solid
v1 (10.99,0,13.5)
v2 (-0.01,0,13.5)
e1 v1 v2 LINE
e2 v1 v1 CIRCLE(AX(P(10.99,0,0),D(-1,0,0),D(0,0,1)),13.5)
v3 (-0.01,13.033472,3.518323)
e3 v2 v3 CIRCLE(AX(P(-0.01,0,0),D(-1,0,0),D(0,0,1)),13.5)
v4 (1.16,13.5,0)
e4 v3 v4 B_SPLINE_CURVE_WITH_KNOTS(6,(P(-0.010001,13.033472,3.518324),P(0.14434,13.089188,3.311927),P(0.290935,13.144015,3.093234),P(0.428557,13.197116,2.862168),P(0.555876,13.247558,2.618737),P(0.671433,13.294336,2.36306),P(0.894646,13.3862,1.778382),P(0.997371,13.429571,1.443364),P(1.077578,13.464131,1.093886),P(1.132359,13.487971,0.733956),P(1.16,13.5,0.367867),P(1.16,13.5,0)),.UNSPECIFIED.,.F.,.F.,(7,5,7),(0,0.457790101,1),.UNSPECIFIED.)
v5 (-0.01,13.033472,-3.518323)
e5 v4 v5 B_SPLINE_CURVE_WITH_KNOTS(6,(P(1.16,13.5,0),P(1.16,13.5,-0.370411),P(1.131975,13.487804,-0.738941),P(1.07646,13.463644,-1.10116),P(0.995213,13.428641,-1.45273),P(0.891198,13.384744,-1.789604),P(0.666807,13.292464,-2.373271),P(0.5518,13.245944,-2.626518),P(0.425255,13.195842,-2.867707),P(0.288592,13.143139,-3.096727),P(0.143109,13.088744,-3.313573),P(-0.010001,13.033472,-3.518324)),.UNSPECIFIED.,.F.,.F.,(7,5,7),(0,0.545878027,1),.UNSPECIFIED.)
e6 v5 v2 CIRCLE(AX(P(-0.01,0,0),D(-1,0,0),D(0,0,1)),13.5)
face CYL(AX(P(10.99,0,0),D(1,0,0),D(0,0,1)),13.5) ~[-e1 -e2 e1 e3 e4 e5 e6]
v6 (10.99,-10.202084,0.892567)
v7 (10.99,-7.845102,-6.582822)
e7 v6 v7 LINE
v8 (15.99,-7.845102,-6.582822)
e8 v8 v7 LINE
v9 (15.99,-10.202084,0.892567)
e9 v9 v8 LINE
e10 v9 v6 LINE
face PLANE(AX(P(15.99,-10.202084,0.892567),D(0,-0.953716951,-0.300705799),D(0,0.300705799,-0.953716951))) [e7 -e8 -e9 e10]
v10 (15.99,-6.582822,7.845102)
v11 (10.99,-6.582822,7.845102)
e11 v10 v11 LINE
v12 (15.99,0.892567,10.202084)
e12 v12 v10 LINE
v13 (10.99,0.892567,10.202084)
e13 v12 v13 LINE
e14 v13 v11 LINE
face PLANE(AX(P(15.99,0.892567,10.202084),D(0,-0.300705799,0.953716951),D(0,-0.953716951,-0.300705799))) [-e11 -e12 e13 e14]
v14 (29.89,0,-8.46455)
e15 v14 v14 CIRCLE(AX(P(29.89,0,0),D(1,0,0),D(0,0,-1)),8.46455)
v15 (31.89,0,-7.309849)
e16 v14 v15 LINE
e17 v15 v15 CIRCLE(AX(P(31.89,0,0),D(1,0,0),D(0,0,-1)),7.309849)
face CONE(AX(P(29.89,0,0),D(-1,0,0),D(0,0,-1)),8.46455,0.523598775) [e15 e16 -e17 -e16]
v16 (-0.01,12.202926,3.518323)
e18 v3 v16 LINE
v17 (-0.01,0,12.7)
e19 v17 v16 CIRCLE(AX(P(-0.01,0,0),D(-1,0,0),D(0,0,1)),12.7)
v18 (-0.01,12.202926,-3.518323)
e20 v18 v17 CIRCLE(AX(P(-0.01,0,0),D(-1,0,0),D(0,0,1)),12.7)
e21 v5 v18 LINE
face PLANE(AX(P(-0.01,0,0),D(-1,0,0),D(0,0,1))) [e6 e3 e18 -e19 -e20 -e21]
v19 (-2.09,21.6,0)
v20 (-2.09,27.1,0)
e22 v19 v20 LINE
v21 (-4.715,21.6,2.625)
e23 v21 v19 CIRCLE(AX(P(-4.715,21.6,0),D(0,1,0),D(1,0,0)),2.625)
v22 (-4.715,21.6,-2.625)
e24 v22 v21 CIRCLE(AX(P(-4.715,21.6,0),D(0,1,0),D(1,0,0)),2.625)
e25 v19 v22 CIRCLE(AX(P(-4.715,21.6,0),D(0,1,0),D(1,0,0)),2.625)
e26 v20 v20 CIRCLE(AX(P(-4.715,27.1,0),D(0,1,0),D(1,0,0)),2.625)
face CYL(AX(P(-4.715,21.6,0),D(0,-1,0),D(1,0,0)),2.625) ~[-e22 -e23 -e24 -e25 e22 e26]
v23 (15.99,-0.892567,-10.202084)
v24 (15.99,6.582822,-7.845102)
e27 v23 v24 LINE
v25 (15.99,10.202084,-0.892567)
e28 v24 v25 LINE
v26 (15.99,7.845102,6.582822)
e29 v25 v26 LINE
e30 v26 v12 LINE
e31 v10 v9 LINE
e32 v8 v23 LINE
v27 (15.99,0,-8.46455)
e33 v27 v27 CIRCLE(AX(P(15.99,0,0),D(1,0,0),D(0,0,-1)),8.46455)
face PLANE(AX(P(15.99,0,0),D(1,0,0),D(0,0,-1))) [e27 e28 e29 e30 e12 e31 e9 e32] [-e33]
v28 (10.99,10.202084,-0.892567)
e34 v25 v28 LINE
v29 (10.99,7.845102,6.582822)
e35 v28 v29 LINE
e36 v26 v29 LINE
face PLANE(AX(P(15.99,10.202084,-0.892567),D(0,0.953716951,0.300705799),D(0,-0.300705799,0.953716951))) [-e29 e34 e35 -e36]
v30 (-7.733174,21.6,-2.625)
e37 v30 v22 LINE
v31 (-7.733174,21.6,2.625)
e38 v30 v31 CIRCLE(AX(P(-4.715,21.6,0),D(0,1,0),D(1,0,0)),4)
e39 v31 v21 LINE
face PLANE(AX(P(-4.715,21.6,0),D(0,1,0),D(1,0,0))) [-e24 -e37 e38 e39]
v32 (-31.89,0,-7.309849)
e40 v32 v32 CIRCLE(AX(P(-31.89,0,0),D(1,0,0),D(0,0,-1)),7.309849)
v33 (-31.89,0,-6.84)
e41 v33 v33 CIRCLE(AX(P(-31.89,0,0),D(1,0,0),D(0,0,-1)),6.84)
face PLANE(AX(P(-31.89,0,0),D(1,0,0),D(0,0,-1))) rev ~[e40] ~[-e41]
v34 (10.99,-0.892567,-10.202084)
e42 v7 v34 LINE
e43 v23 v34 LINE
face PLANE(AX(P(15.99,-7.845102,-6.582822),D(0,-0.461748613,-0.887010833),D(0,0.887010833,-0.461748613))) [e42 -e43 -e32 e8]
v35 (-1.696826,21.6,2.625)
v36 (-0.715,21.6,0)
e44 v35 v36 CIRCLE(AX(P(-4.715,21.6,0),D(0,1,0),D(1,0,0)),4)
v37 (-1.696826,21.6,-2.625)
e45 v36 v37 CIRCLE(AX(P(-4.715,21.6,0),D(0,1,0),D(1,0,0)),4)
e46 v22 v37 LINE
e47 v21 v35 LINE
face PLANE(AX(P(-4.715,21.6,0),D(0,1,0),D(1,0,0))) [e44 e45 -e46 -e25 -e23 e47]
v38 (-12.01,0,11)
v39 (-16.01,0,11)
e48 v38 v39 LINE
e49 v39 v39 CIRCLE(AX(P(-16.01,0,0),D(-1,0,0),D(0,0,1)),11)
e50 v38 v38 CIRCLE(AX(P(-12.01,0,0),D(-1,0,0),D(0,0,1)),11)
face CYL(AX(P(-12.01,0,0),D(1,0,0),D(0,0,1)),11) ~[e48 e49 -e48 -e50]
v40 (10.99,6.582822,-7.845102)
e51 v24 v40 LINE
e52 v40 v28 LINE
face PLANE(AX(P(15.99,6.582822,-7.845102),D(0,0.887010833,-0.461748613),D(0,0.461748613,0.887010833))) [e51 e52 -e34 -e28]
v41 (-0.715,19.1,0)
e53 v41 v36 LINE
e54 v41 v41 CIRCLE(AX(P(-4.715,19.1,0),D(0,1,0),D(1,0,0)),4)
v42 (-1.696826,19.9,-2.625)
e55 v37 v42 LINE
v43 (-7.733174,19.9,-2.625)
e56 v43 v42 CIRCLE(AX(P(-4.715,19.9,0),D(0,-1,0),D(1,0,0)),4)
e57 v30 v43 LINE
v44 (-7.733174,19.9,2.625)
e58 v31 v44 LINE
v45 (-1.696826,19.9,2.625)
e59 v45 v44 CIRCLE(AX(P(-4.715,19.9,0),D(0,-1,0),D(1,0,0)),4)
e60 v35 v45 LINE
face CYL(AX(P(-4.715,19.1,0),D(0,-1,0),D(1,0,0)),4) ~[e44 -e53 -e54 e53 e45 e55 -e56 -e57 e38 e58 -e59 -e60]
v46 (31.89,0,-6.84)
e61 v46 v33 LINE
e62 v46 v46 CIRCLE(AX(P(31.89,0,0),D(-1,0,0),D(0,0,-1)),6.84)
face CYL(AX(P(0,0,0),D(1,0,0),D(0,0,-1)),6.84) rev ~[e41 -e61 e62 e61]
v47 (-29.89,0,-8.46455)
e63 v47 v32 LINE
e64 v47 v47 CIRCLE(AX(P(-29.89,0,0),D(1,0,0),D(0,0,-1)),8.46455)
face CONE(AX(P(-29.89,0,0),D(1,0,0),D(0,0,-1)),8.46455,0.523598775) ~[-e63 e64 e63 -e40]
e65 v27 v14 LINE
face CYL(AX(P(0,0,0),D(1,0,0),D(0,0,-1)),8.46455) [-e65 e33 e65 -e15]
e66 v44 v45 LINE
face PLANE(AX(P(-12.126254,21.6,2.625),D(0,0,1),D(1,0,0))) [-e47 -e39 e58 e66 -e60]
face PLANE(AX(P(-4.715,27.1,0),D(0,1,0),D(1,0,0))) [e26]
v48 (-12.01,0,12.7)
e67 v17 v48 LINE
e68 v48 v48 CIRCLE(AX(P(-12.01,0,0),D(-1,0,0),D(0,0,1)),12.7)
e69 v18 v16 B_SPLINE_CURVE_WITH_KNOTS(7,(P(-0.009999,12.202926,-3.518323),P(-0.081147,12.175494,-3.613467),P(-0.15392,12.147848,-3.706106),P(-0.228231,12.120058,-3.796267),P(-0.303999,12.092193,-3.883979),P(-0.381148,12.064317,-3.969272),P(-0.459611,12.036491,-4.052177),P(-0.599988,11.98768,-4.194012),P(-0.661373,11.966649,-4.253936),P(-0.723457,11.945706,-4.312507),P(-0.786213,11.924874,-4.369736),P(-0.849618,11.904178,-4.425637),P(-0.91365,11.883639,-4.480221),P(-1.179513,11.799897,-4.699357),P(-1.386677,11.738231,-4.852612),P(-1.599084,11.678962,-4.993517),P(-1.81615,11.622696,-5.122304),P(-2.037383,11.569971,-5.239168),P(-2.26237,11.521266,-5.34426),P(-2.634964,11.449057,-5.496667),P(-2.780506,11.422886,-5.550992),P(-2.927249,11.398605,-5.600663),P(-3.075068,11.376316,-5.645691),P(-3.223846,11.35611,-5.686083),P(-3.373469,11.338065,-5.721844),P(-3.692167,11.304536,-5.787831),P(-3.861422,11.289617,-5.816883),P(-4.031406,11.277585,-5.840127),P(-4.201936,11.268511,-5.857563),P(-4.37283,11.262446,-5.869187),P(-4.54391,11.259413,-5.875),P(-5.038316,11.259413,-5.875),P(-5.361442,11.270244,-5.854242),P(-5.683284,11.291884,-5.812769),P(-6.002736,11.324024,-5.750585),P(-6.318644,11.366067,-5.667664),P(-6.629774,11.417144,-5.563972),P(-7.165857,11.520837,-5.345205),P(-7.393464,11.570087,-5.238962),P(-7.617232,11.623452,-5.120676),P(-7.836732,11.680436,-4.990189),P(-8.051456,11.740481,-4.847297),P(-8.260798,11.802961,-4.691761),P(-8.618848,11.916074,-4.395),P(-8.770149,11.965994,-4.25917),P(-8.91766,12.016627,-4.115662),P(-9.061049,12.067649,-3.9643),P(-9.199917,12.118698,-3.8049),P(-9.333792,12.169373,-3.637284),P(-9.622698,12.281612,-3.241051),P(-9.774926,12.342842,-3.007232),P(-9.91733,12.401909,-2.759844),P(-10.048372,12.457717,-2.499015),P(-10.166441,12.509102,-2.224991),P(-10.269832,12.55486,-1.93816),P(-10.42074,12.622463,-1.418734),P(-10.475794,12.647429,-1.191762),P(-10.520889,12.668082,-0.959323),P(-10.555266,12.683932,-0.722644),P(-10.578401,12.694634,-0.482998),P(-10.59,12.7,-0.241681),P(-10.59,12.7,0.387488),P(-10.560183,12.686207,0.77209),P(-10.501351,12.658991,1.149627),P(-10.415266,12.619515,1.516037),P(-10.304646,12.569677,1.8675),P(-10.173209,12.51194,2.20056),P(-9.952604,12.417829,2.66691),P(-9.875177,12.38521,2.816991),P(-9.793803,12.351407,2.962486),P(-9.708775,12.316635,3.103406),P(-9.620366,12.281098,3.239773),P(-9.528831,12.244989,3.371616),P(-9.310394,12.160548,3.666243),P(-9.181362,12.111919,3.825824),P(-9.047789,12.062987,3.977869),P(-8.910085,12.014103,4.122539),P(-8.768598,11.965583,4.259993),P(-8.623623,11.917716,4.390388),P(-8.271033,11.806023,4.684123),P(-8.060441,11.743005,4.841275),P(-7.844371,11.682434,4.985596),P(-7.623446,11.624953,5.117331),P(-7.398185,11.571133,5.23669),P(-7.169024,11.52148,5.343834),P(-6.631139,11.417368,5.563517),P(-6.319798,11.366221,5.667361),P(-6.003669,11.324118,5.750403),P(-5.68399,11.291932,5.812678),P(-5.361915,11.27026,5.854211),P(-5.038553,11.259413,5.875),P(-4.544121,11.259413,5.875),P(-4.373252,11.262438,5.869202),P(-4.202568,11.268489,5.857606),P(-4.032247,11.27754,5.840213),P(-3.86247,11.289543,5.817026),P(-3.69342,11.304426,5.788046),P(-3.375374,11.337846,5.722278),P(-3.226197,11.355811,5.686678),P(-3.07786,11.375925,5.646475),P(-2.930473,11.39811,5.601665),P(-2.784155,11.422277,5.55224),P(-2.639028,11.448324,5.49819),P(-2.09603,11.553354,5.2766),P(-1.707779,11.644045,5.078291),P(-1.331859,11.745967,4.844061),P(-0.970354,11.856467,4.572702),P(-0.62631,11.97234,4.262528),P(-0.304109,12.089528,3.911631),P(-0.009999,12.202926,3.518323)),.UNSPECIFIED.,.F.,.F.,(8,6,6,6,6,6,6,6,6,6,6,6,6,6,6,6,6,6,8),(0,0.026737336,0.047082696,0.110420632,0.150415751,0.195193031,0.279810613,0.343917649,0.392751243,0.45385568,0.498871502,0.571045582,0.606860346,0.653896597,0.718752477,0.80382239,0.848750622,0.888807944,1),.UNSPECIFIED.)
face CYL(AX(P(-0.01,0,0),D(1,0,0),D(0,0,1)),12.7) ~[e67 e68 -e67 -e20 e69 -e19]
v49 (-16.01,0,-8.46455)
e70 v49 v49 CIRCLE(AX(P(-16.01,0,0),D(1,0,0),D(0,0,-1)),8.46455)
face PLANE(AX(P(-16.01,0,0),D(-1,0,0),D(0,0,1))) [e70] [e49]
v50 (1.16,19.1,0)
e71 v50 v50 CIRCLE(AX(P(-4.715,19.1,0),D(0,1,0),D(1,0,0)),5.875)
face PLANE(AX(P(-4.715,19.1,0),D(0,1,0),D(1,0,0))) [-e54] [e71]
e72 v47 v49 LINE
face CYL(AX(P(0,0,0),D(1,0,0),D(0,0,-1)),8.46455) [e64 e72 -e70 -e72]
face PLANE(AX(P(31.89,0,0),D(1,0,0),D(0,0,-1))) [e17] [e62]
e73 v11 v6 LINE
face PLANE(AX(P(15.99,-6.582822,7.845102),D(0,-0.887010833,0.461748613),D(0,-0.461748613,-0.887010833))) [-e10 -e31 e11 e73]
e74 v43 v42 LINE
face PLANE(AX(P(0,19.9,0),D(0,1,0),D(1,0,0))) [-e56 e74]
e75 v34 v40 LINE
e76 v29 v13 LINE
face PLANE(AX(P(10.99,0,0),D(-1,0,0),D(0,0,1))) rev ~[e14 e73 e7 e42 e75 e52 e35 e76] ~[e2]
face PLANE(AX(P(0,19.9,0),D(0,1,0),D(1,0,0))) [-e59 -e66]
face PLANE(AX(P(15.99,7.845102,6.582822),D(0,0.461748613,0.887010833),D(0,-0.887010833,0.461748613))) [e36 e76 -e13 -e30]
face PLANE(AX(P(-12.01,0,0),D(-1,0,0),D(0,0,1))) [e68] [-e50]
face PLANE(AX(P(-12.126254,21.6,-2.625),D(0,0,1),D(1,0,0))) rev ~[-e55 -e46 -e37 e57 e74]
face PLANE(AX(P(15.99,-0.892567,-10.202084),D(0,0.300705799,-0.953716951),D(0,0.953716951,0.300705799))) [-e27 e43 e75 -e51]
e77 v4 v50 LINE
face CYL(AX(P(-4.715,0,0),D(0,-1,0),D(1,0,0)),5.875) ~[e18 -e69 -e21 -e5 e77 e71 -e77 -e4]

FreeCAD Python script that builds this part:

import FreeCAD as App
import Part
import Sketcher

V = App.Vector
Q = App.Units.Quantity


def edges_at(feature, points):
    """Names of the edges that pass closest to the given points."""
    edges = feature.Shape.Edges
    near = lambda p: min(range(len(edges)), key=lambda i: edges[i].distToShape(Part.Vertex(*p))[0])
    return sorted({f"Edge{near(p) + 1}" for p in points})

doc = App.newDocument("Part")
params = doc.addObject("Spreadsheet::Sheet", "Params")
for row, (alias, value) in enumerate([
    ("pad1_length", "63.78 mm"),
    ("pad2_length", "5 mm"),
    ("sketch3_diameter", "27 mm"),
    ("pad3_length", "11 mm"),
    ("sketch4_diameter", "25.4 mm"),
    ("pad4_length", "12 mm"),
    ("sketch5_diameter", "22 mm"),
    ("pad5_length", "4 mm"),
    ("sketch6_diameter", "11.75 mm"),
    ("pad6_length", "19.1 mm"),
    ("sketch7_diameter", "8 mm"),
    ("pad7_length", "2.5 mm"),
    ("sketch8_width", "81.31 mm"),
    ("sketch8_height", "44.53 mm"),
    ("sketch8_height2", "5.25 mm"),
    ("pocket1_length", "1.7 mm"),
    ("sketch9_diameter", "5.25 mm"),
    ("pad8_length", "5.5 mm"),
    ("sketch10_diameter", "13.68 mm"),
    ("chamfer_size", "2 mm"),
    ("chamfer_size2", "1.154701 mm"),
    ("chamfer2_size", "2 mm"),
    ("chamfer2_size2", "1.154701 mm"),
], start=1):
    params.set(f"A{row}", alias)
    params.set(f"B{row}", "=" + value)
    params.setAlias(f"B{row}", alias)

body = doc.addObject("PartDesign::Body", "Body")

sketch1 = doc.addObject("Sketcher::SketchObject", "Sketch")
body.addObject(sketch1)
sketch1.AttachmentSupport = (doc.YZ_Plane, [""])
sketch1.MapMode = "FlatFace"
sketch1.addGeometry(Part.Circle(V(0, 0, 0), V(0, 0, 1), 8), False)
sketch1.addConstraint([
    Sketcher.Constraint("Coincident", 0, 3, -1, 1),
    Sketcher.Constraint("Diameter", 0, 16.9291),
])
pad1 = doc.addObject("PartDesign::Pad", "Pad")
body.addObject(pad1)
pad1.Profile = sketch1
pad1.setExpression("Length", "Params.pad1_length")
pad1.Midplane = True

sketch2 = doc.addObject("Sketcher::SketchObject", "Sketch001")
body.addObject(sketch2)
sketch2.AttachmentSupport = (doc.YZ_Plane, [""])
sketch2.MapMode = "FlatFace"
sketch2.AttachmentOffset = App.Placement(V(0, 0, 15.99), App.Rotation())
sketch2.addGeometry([
    Part.LineSegment(V(7, -8, 0), V(10, -1, 0)),
    Part.LineSegment(V(10, -1, 0), V(8, 7, 0)),
    Part.LineSegment(V(8, 7, 0), V(1, 10, 0)),
    Part.LineSegment(V(1, 10, 0), V(-7, 8, 0)),
    Part.LineSegment(V(-7, 8, 0), V(-10, 1, 0)),
    Part.LineSegment(V(-10, 1, 0), V(-8, -7, 0)),
    Part.LineSegment(V(-8, -7, 0), V(-1, -10, 0)),
    Part.LineSegment(V(-1, -10, 0), V(7, -8, 0)),
], False)
sketch2.addConstraint([
    Sketcher.Constraint("Coincident", 0, 2, 1, 1),
    Sketcher.Constraint("Coincident", 1, 2, 2, 1),
    Sketcher.Constraint("Coincident", 2, 2, 3, 1),
    Sketcher.Constraint("Coincident", 3, 2, 4, 1),
    Sketcher.Constraint("Coincident", 4, 2, 5, 1),
    Sketcher.Constraint("Coincident", 5, 2, 6, 1),
    Sketcher.Constraint("Coincident", 6, 2, 7, 1),
    Sketcher.Constraint("Coincident", 7, 2, 0, 1),
    Sketcher.Constraint("Symmetric", 0, 2, 4, 2, -1, 1),
    Sketcher.Constraint("Symmetric", 1, 2, 5, 2, -1, 1),
    Sketcher.Constraint("Symmetric", 2, 2, 6, 2, -1, 1),
    Sketcher.Constraint("Symmetric", 3, 2, 7, 2, -1, 1),
    Sketcher.Constraint("Perpendicular", 0, 2),
    Sketcher.Constraint("Perpendicular", 1, 3),
    Sketcher.Constraint("Equal", 0, 1),
    Sketcher.Constraint("Equal", 1, 2),
    Sketcher.Constraint("Equal", 2, 3),
    Sketcher.Constraint("Angle", 0, Q("62.5 deg")),
    Sketcher.Constraint("Angle", 1, Q("107.5 deg")),
    Sketcher.Constraint("DistanceX", 1, 2, 0, 2, 2.356981),
])
pad2 = doc.addObject("PartDesign::Pad", "Pad001")
body.addObject(pad2)
pad2.Profile = sketch2
pad2.setExpression("Length", "Params.pad2_length")
pad2.Reversed = True

sketch3 = doc.addObject("Sketcher::SketchObject", "Sketch002")
body.addObject(sketch3)
sketch3.AttachmentSupport = (doc.YZ_Plane, [""])
sketch3.MapMode = "FlatFace"
sketch3.AttachmentOffset = App.Placement(V(0, 0, 10.99), App.Rotation())
sketch3.addGeometry(Part.Circle(V(0, 0, 0), V(0, 0, 1), 14), False)
sketch3.addConstraint([
    Sketcher.Constraint("Coincident", 0, 3, -1, 1),
    Sketcher.Constraint("Diameter", 0, 27.0),
])
sketch3.setExpression("Constraints[1]", "Params.sketch3_diameter")
pad3 = doc.addObject("PartDesign::Pad", "Pad002")
body.addObject(pad3)
pad3.Profile = sketch3
pad3.setExpression("Length", "Params.pad3_length")
pad3.Reversed = True

sketch4 = doc.addObject("Sketcher::SketchObject", "Sketch003")
body.addObject(sketch4)
sketch4.AttachmentSupport = (doc.YZ_Plane, [""])
sketch4.MapMode = "FlatFace"
sketch4.AttachmentOffset = App.Placement(V(0, 0, -0.01), App.Rotation())
sketch4.addGeometry(Part.Circle(V(0, 0, 0), V(0, 0, 1), 13), False)
sketch4.addConstraint([
    Sketcher.Constraint("Coincident", 0, 3, -1, 1),
    Sketcher.Constraint("Diameter", 0, 25.4),
])
sketch4.setExpression("Constraints[1]", "Params.sketch4_diameter")
pad4 = doc.addObject("PartDesign::Pad", "Pad003")
body.addObject(pad4)
pad4.Profile = sketch4
pad4.setExpression("Length", "Params.pad4_length")
pad4.Reversed = True

sketch5 = doc.addObject("Sketcher::SketchObject", "Sketch004")
body.addObject(sketch5)
sketch5.AttachmentSupport = (doc.YZ_Plane, [""])
sketch5.MapMode = "FlatFace"
sketch5.AttachmentOffset = App.Placement(V(0, 0, -12.01), App.Rotation())
sketch5.addGeometry(Part.Circle(V(0, 0, 0), V(0, 0, 1), 11), False)
sketch5.addConstraint([
    Sketcher.Constraint("Coincident", 0, 3, -1, 1),
    Sketcher.Constraint("Diameter", 0, 22.0),
])
sketch5.setExpression("Constraints[1]", "Params.sketch5_diameter")
pad5 = doc.addObject("PartDesign::Pad", "Pad004")
body.addObject(pad5)
pad5.Profile = sketch5
pad5.setExpression("Length", "Params.pad5_length")
pad5.Reversed = True

sketch6 = doc.addObject("Sketcher::SketchObject", "Sketch005")
body.addObject(sketch6)
sketch6.AttachmentSupport = (doc.XZ_Plane, [""])
sketch6.MapMode = "FlatFace"
sketch6.addGeometry(Part.Circle(V(-5, 0, 0), V(0, 0, 1), 6), False)
sketch6.addConstraint([
    Sketcher.Constraint("PointOnObject", 0, 3, -1),
    Sketcher.Constraint("Diameter", 0, 11.75),
    Sketcher.Constraint("DistanceX", 0, 3, -1, 1, 4.715),
])
sketch6.setExpression("Constraints[1]", "Params.sketch6_diameter")
pad6 = doc.addObject("PartDesign::Pad", "Pad005")
body.addObject(pad6)
pad6.Profile = sketch6
pad6.setExpression("Length", "Params.pad6_length")
pad6.Reversed = True

sketch7 = doc.addObject("Sketcher::SketchObject", "Sketch006")
body.addObject(sketch7)
sketch7.AttachmentSupport = (doc.XZ_Plane, [""])
sketch7.MapMode = "FlatFace"
sketch7.AttachmentOffset = App.Placement(V(0, 0, -19.1), App.Rotation())
sketch7.addGeometry(Part.Circle(V(-4.7, 0, 0), V(0, 0, 1), 4), False)
sketch7.addConstraint([
    Sketcher.Constraint("PointOnObject", 0, 3, -1),
    Sketcher.Constraint("Diameter", 0, 8.0),
    Sketcher.Constraint("DistanceX", 0, 3, -1, 1, 4.715),
])
sketch7.setExpression("Constraints[1]", "Params.sketch7_diameter")
pad7 = doc.addObject("PartDesign::Pad", "Pad006")
body.addObject(pad7)
pad7.Profile = sketch7
pad7.setExpression("Length", "Params.pad7_length")
pad7.Reversed = True

sketch8 = doc.addObject("Sketcher::SketchObject", "Sketch007")
body.addObject(sketch8)
sketch8.AttachmentSupport = (doc.XZ_Plane, [""])
sketch8.MapMode = "FlatFace"
sketch8.AttachmentOffset = App.Placement(V(0, 0, -21.6), App.Rotation())
sketch8.addGeometry([
    Part.LineSegment(V(-41, -22, 0), V(-41, 22, 0)),
    Part.LineSegment(V(-41, 22, 0), V(41, 22, 0)),
    Part.LineSegment(V(41, 22, 0), V(41, -22, 0)),
    Part.LineSegment(V(41, -22, 0), V(-41, -22, 0)),
    Part.LineSegment(V(3, 3, 0), V(-12, 3, 0)),
    Part.LineSegment(V(-12, 3, 0), V(-12, -3, 0)),
    Part.LineSegment(V(-12, -3, 0), V(3, -3, 0)),
    Part.LineSegment(V(3, -3, 0), V(3, 3, 0)),
], False)
sketch8.addConstraint([
    Sketcher.Constraint("Coincident", 0, 2, 1, 1),
    Sketcher.Constraint("Coincident", 1, 2, 2, 1),
    Sketcher.Constraint("Coincident", 2, 2, 3, 1),
    Sketcher.Constraint("Coincident", 3, 2, 0, 1),
    Sketcher.Constraint("Coincident", 4, 2, 5, 1),
    Sketcher.Constraint("Coincident", 5, 2, 6, 1),
    Sketcher.Constraint("Coincident", 6, 2, 7, 1),
    Sketcher.Constraint("Coincident", 7, 2, 4, 1),
    Sketcher.Constraint("Vertical", 0),
    Sketcher.Constraint("Horizontal", 1),
    Sketcher.Constraint("Vertical", 2),
    Sketcher.Constraint("Horizontal", 3),
    Sketcher.Constraint("Horizontal", 4),
    Sketcher.Constraint("Vertical", 5),
    Sketcher.Constraint("Horizontal", 6),
    Sketcher.Constraint("Vertical", 7),
    Sketcher.Constraint("Symmetric", 0, 2, 2, 2, -1, 1),
    Sketcher.Constraint("DistanceX", 1, 1, 1, 2, 81.31),
    Sketcher.Constraint("DistanceY", 0, 1, 0, 2, 44.53),
    Sketcher.Constraint("DistanceY", 5, 2, 5, 1, 5.25),
    Sketcher.Constraint("DistanceY", 4, 2, 0, 2, 19.64),
    Sketcher.Constraint("DistanceX", 4, 2, 4, 1, 14.822508),
    Sketcher.Constraint("DistanceX", 4, 2, -1, 1, 12.126254),
])
sketch8.setExpression("Constraints[17]", "Params.sketch8_width")
sketch8.setExpression("Constraints[18]", "Params.sketch8_height")
sketch8.setExpression("Constraints[19]", "Params.sketch8_height2")
pocket1 = doc.addObject("PartDesign::Pocket", "Pocket")
body.addObject(pocket1)
pocket1.Profile = sketch8
pocket1.setExpression("Length", "Params.pocket1_length")
pocket1.Reversed = True

sketch9 = doc.addObject("Sketcher::SketchObject", "Sketch008")
body.addObject(sketch9)
sketch9.AttachmentSupport = (doc.XZ_Plane, [""])
sketch9.MapMode = "FlatFace"
sketch9.AttachmentOffset = App.Placement(V(0, 0, -21.6), App.Rotation())
sketch9.addGeometry(Part.Circle(V(-4.7, 0, 0), V(0, 0, 1), 2.6), False)
sketch9.addConstraint([
    Sketcher.Constraint("PointOnObject", 0, 3, -1),
    Sketcher.Constraint("Diameter", 0, 5.25),
    Sketcher.Constraint("DistanceX", 0, 3, -1, 1, 4.715),
])
sketch9.setExpression("Constraints[1]", "Params.sketch9_diameter")
pad8 = doc.addObject("PartDesign::Pad", "Pad007")
body.addObject(pad8)
pad8.Profile = sketch9
pad8.setExpression("Length", "Params.pad8_length")
pad8.Reversed = True

sketch10 = doc.addObject("Sketcher::SketchObject", "Sketch009")
body.addObject(sketch10)
sketch10.AttachmentSupport = (doc.YZ_Plane, [""])
sketch10.MapMode = "FlatFace"
sketch10.addGeometry(Part.Circle(V(0, 0, 0), V(0, 0, 1), 7), False)
sketch10.addConstraint([
    Sketcher.Constraint("Coincident", 0, 3, -1, 1),
    Sketcher.Constraint("Diameter", 0, 13.68),
])
sketch10.setExpression("Constraints[1]", "Params.sketch10_diameter")
pocket2 = doc.addObject("PartDesign::Pocket", "Pocket001")
body.addObject(pocket2)
pocket2.Profile = sketch10
pocket2.Type = "ThroughAll"
pocket2.Midplane = True
doc.recompute()

chamfer = doc.addObject("PartDesign::Chamfer", "Chamfer")
body.addObject(chamfer)
chamfer.Base = (pocket2, edges_at(pocket2, [(-31.89, 0, 8.465)]))
chamfer.ChamferType = "Two distances"
chamfer.setExpression("Size", "Params.chamfer_size")
chamfer.setExpression("Size2", "Params.chamfer_size2")
doc.recompute()

chamfer2 = doc.addObject("PartDesign::Chamfer", "Chamfer001")
body.addObject(chamfer2)
chamfer2.Base = (chamfer, edges_at(chamfer, [(31.89, 0, 8.465)]))
chamfer2.ChamferType = "Two distances"
chamfer2.setExpression("Size", "Params.chamfer2_size")
chamfer2.setExpression("Size2", "Params.chamfer2_size2")
chamfer2.FlipDirection = True

doc.recompute()
